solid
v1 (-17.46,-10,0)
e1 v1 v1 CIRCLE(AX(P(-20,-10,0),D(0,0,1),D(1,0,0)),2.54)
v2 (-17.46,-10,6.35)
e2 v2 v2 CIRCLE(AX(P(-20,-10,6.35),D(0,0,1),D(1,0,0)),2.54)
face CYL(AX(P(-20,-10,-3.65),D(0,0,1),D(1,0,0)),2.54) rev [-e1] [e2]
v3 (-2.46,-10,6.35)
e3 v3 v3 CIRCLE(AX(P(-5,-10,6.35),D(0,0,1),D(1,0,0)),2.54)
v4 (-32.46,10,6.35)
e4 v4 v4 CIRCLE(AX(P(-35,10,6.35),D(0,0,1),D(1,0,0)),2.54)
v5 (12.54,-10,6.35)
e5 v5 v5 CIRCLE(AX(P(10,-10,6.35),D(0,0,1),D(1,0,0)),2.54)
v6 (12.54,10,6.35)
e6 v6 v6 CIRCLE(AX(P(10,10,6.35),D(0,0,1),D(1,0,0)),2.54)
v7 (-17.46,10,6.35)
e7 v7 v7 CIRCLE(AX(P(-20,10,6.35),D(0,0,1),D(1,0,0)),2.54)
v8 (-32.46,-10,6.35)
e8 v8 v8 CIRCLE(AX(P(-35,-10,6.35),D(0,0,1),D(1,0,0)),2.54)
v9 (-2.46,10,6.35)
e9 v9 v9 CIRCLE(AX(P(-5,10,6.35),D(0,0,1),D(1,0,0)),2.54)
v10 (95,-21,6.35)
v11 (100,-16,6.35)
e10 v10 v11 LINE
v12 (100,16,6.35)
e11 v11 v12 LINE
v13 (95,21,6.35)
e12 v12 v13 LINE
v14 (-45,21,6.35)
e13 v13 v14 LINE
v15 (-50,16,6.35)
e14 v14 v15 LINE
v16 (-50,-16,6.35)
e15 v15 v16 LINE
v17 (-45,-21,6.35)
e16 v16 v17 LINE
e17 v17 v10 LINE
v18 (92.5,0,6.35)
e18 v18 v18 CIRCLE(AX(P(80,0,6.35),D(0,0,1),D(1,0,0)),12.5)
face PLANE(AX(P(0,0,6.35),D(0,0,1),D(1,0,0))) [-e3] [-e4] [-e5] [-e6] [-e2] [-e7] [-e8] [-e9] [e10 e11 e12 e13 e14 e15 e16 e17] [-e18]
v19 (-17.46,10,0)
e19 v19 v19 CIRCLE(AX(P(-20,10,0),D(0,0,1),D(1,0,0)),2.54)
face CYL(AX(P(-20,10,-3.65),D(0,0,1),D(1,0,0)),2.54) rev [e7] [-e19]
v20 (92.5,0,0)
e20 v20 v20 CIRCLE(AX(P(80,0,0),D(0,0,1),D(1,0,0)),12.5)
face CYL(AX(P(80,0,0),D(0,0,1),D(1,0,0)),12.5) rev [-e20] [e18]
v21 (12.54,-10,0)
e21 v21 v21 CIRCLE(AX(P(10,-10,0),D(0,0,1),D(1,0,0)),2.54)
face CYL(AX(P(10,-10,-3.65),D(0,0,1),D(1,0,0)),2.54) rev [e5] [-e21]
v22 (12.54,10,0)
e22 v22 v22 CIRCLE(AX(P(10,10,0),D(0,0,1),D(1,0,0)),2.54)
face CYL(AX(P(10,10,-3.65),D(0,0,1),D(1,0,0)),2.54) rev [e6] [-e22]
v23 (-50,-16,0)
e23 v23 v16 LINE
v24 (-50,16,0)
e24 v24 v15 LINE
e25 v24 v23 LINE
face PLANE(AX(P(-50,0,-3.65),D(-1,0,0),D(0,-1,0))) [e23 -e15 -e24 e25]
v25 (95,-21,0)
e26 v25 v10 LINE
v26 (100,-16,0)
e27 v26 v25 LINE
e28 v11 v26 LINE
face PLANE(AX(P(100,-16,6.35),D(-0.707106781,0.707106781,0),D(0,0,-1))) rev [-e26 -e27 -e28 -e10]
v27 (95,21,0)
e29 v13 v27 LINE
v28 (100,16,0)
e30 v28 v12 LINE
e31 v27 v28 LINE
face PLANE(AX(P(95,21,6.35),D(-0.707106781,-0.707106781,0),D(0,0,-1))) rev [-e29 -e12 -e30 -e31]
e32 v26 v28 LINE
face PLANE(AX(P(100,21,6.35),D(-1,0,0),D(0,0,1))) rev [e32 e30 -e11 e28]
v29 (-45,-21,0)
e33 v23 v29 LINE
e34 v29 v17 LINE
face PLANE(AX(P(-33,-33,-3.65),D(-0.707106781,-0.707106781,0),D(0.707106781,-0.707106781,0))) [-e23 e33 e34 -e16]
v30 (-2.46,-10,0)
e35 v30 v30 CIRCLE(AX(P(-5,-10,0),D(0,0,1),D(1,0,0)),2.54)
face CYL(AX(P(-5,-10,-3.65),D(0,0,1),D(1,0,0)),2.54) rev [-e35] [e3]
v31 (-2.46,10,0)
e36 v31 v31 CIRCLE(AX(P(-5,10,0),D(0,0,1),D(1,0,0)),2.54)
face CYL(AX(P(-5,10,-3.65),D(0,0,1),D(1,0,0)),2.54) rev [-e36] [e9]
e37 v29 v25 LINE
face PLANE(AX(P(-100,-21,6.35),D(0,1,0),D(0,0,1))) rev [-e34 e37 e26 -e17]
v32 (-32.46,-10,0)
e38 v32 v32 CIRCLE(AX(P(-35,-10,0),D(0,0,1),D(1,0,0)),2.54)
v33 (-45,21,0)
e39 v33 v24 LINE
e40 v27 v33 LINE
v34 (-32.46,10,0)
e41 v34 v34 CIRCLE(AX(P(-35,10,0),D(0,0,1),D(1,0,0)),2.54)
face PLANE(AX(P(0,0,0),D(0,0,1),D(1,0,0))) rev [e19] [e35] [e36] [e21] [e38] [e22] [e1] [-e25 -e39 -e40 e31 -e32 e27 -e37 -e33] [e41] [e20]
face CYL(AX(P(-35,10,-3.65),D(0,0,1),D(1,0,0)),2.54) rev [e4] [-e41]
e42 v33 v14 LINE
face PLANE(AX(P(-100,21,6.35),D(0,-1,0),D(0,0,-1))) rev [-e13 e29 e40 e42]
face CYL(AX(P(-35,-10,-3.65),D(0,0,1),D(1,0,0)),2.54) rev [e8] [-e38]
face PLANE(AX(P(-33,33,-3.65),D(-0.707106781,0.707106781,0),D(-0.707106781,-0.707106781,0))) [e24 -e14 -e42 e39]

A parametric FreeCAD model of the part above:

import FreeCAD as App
import Part
import Sketcher
from FreeCAD import Vector
Q = App.Units.Quantity


def edges_at(feature, points):
    """Names of the edges that pass closest to the given points."""
    edges = feature.Shape.Edges
    near = lambda p: min(range(len(edges)), key=lambda i: edges[i].distToShape(Part.Vertex(*p))[0])
    return sorted({f"Edge{near(p) + 1}" for p in points})

doc = App.newDocument("Part")
body = doc.addObject("PartDesign::Body", "Body")

sketch1 = body.newObject("Sketcher::SketchObject", "Sketch")
sketch1.AttachmentSupport = (doc.getObject("XY_Plane"), [""])
sketch1.MapMode = "FlatFace"
sketch1.addGeometry([
    Part.LineSegment(Vector(-100, 21, 0), Vector(-100, -21, 0)),
    Part.LineSegment(Vector(-100, -21, 0), Vector(100, -21, 0)),
    Part.LineSegment(Vector(100, -21, 0), Vector(100, 21, 0)),
    Part.LineSegment(Vector(100, 21, 0), Vector(-100, 21, 0)),
], False)
sketch1.addConstraint([
    Sketcher.Constraint("Coincident", 0, 2, 1, 1),
    Sketcher.Constraint("Coincident", 1, 2, 2, 1),
    Sketcher.Constraint("Coincident", 2, 2, 3, 1),
    Sketcher.Constraint("Coincident", 3, 2, 0, 1),
    Sketcher.Constraint("Vertical", 0),
    Sketcher.Constraint("Horizontal", 1),
    Sketcher.Constraint("Vertical", 2),
    Sketcher.Constraint("Horizontal", 3),
    Sketcher.Constraint("Symmetric", 0, 2, 2, 2, -1, 1),
    Sketcher.Constraint("DistanceX", 1, 1, 1, 2, Q("200 mm")),
    Sketcher.Constraint("DistanceY", 0, 2, 0, 1, Q("42 mm")),
])
pad1 = body.newObject("PartDesign::Pad", "Pad")
pad1.Profile = sketch1
pad1.Length = 6.35

sketch2 = body.newObject("Sketcher::SketchObject", "Sketch001")
sketch2.AttachmentSupport = (doc.getObject("XY_Plane"), [""])
sketch2.MapMode = "FlatFace"
sketch2.AttachmentOffset = App.Placement(Vector(0, 0, 6.35), App.Rotation())
sketch2.addGeometry([
    Part.Circle(Vector(-55, 10, 0), Vector(0, 0, 1), 2),
    Part.Circle(Vector(-55, -10, 0), Vector(0, 0, 1), 2),
], False)
sketch2.addConstraint([
    Sketcher.Constraint("Equal", 0, 1),
    Sketcher.Constraint("Symmetric", 0, 3, 1, 3, -1),
    Sketcher.Constraint("Diameter", 0, Q("4 mm")),
    Sketcher.Constraint("DistanceX", 0, 3, -1, 1, Q("55 mm")),
    Sketcher.Constraint("DistanceY", -1, 1, 0, 3, Q("10 mm")),
])
pocket1 = body.newObject("PartDesign::Pocket", "Pocket")
pocket1.Profile = sketch2
pocket1.Type = "ThroughAll"

sketch3 = body.newObject("Sketcher::SketchObject", "Sketch002")
sketch3.AttachmentSupport = (doc.getObject("XY_Plane"), [""])
sketch3.MapMode = "FlatFace"
sketch3.AttachmentOffset = App.Placement(Vector(0, 0, 6.35), App.Rotation())
sketch3.addGeometry(Part.Circle(Vector(-76, 0, 0), Vector(0, 0, 1), 3.2), False)
sketch3.addConstraint([
    Sketcher.Constraint("PointOnObject", 0, 3, -1),
    Sketcher.Constraint("Diameter", 0, Q("6.35 mm")),
    Sketcher.Constraint("DistanceX", 0, 3, -1, 1, Q("76 mm")),
])
pocket2 = body.newObject("PartDesign::Pocket", "Pocket001")
pocket2.Profile = sketch3
pocket2.Type = "ThroughAll"
doc.recompute()

chamfer = body.newObject("PartDesign::Chamfer", "Chamfer")
chamfer.Base = (pocket2, edges_at(pocket2, [
    (100, -21, 3.175),
    (-100, -21, 3.175),
    (-100, 21, 3.175),
    (100, 21, 3.175),
]))
chamfer.Size = 5

sketch4 = body.newObject("Sketcher::SketchObject", "Sketch003")
sketch4.AttachmentSupport = (doc.getObject("XY_Plane"), [""])
sketch4.MapMode = "FlatFace"
sketch4.AttachmentOffset = App.Placement(Vector(0, 0, 6.35), App.Rotation())
sketch4.addGeometry(Part.Circle(Vector(80, 0, 0), Vector(0, 0, 1), 3.2), False)
sketch4.addConstraint([
    Sketcher.Constraint("PointOnObject", 0, 3, -1),
    Sketcher.Constraint("Diameter", 0, Q("6.35 mm")),
    Sketcher.Constraint("DistanceX", -1, 1, 0, 3, Q("80 mm")),
])
pocket3 = body.newObject("PartDesign::Pocket", "Pocket002")
pocket3.Profile = sketch4
pocket3.Type = "ThroughAll"

sketch5 = body.newObject("Sketcher::SketchObject", "Sketch004")
sketch5.AttachmentSupport = (doc.getObject("XY_Plane"), [""])
sketch5.MapMode = "FlatFace"
sketch5.AttachmentOffset = App.Placement(Vector(0, 0, 6.35), App.Rotation())
sketch5.addGeometry(Part.Circle(Vector(80, 0, 0), Vector(0, 0, 1), 12), False)
sketch5.addConstraint([
    Sketcher.Constraint("PointOnObject", 0, 3, -1),
    Sketcher.Constraint("Diameter", 0, Q("25 mm")),
    Sketcher.Constraint("DistanceX", -1, 1, 0, 3, Q("80 mm")),
])
pocket4 = body.newObject("PartDesign::Pocket", "Pocket003")
pocket4.Profile = sketch5
pocket4.Type = "ThroughAll"

sketch6 = body.newObject("Sketcher::SketchObject", "Sketch005")
sketch6.AttachmentSupport = (doc.getObject("XY_Plane"), [""])
sketch6.MapMode = "FlatFace"
sketch6.AttachmentOffset = App.Placement(Vector(0, 0, 6.35), App.Rotation())
sketch6.addGeometry(Part.Circle(Vector(-93, 0, 0), Vector(0, 0, 1), 3.3), False)
sketch6.addConstraint([
    Sketcher.Constraint("PointOnObject", 0, 3, -1),
    Sketcher.Constraint("Diameter", 0, Q("6.604 mm")),
    Sketcher.Constraint("DistanceX", 0, 3, -1, 1, Q("93 mm")),
])
pocket5 = body.newObject("PartDesign::Pocket", "Pocket004")
pocket5.Profile = sketch6
pocket5.Type = "ThroughAll"

sketch7 = body.newObject("Sketcher::SketchObject", "Sketch006")
sketch7.AttachmentSupport = (doc.getObject("XY_Plane"), [""])
sketch7.MapMode = "FlatFace"
sketch7.AttachmentOffset = App.Placement(Vector(0, 0, 6.35), App.Rotation())
sketch7.addGeometry([
    Part.LineSegment(Vector(-50, -16, 0), Vector(-50, 16, 0)),
    Part.LineSegment(Vector(-50, 16, 0), Vector(-45, 21, 0)),
    Part.LineSegment(Vector(-45, 21, 0), Vector(-95, 21, 0)),
    Part.LineSegment(Vector(-95, 21, 0), Vector(-100, 16, 0)),
    Part.LineSegment(Vector(-100, 16, 0), Vector(-100, -16, 0)),
    Part.LineSegment(Vector(-100, -16, 0), Vector(-95, -21, 0)),
    Part.LineSegment(Vector(-95, -21, 0), Vector(-45, -21, 0)),
    Part.LineSegment(Vector(-45, -21, 0), Vector(-50, -16, 0)),
    Part.Circle(Vector(-55, -10, 0), Vector(0, 0, 1), 2),
    Part.Circle(Vector(-93, 0, 0), Vector(0, 0, 1), 3.3),
    Part.Circle(Vector(-76, 0, 0), Vector(0, 0, 1), 3.2),
    Part.Circle(Vector(-55, 10, 0), Vector(0, 0, 1), 2),
    Part.Circle(Vector(-35, 10, 0), Vector(0, 0, 1), 2.5),
    Part.Circle(Vector(-20, 10, 0), Vector(0, 0, 1), 2.5),
    Part.Circle(Vector(-5, 10, 0), Vector(0, 0, 1), 2.5),
    Part.Circle(Vector(10, 10, 0), Vector(0, 0, 1), 2.5),
    Part.Circle(Vector(-20, -10, 0), Vector(0, 0, 1), 2.5),
    Part.Circle(Vector(-5, -10, 0), Vector(0, 0, 1), 2.5),
    Part.Circle(Vector(10, -10, 0), Vector(0, 0, 1), 2.5),
    Part.Circle(Vector(-35, -10, 0), Vector(0, 0, 1), 2.5),
], False)
sketch7.addConstraint([
    Sketcher.Constraint("Coincident", 0, 2, 1, 1),
    Sketcher.Constraint("Coincident", 1, 2, 2, 1),
    Sketcher.Constraint("Coincident", 2, 2, 3, 1),
    Sketcher.Constraint("Coincident", 3, 2, 4, 1),
    Sketcher.Constraint("Coincident", 4, 2, 5, 1),
    Sketcher.Constraint("Coincident", 5, 2, 6, 1),
    Sketcher.Constraint("Coincident", 6, 2, 7, 1),
    Sketcher.Constraint("Coincident", 7, 2, 0, 1),
    Sketcher.Constraint("Vertical", 0),
    Sketcher.Constraint("Horizontal", 2),
    Sketcher.Constraint("Vertical", 4),
    Sketcher.Constraint("Horizontal", 6),
    Sketcher.Constraint("Equal", 8, 11),
    Sketcher.Constraint("Equal", 12, 13),
    Sketcher.Constraint("Equal", 13, 14),
    Sketcher.Constraint("Equal", 14, 15),
    Sketcher.Constraint("Equal", 15, 16),
    Sketcher.Constraint("Equal", 16, 17),
    Sketcher.Constraint("Equal", 17, 18),
    Sketcher.Constraint("Equal", 18, 19),
    Sketcher.Constraint("Symmetric", 8, 3, 11, 3, -1),
    Sketcher.Constraint("Symmetric", 13, 3, 16, 3, -1),
    Sketcher.Constraint("Symmetric", 14, 3, 17, 3, -1),
    Sketcher.Constraint("Symmetric", 15, 3, 18, 3, -1),
    Sketcher.Constraint("Symmetric", 12, 3, 19, 3, -1),
    Sketcher.Constraint("Symmetric", 2, 2, 5, 2, -1),
    Sketcher.Constraint("PointOnObject", 9, 3, -1),
    Sketcher.Constraint("PointOnObject", 10, 3, -1),
    Sketcher.Constraint("Parallel", 1, 3),
    Sketcher.Constraint("Perpendicular", 3, 5),
    Sketcher.Constraint("Parallel", 5, 7),
    Sketcher.Constraint("Horizontal", 11, 3, 12, 3),
    Sketcher.Constraint("Horizontal", 12, 3, 13, 3),
    Sketcher.Constraint("Horizontal", 13, 3, 14, 3),
    Sketcher.Constraint("Horizontal", 14, 3, 15, 3),
    Sketcher.Constraint("Horizontal", 0, 2, 3, 2),
    Sketcher.Constraint("Horizontal", 4, 2, 7, 2),
    Sketcher.Constraint("Equal", 3, 5),
    Sketcher.Constraint("Diameter", 8, Q("4 mm")),
    Sketcher.Constraint("Diameter", 10, Q("6.35 mm")),
    Sketcher.Constraint("Diameter", 12, Q("5.08 mm")),
    Sketcher.Constraint("DistanceX", 2, 2, 2, 1, Q("50 mm")),
    Sketcher.Constraint("DistanceY", 0, 1, 0, 2, Q("32 mm")),
    Sketcher.Constraint("Diameter", 9, Q("6.604 mm")),
    Sketcher.Constraint("DistanceX", 8, 3, -1, 1, Q("55 mm")),
    Sketcher.Constraint("DistanceY", 8, 3, -1, 1, Q("10 mm")),
    Sketcher.Constraint("DistanceX", 9, 3, -1, 1, Q("93 mm")),
    Sketcher.Constraint("DistanceX", 10, 3, -1, 1, Q("76 mm")),
    Sketcher.Constraint("DistanceX", 12, 3, -1, 1, Q("35 mm")),
    Sketcher.Constraint("DistanceX", 13, 3, -1, 1, Q("20 mm")),
    Sketcher.Constraint("DistanceX", 14, 3, -1, 1, Q("5 mm")),
    Sketcher.Constraint("DistanceX", -1, 1, 15, 3, Q("10 mm")),
    Sketcher.Constraint("DistanceX", 0, 2, -1, 1, Q("50 mm")),
    Sketcher.Constraint("DistanceX", 1, 2, -1, 1, Q("45 mm")),
])
pocket6 = body.newObject("PartDesign::Pocket", "Pocket005")
pocket6.Profile = sketch7
pocket6.Length = 10

doc.recompute()
